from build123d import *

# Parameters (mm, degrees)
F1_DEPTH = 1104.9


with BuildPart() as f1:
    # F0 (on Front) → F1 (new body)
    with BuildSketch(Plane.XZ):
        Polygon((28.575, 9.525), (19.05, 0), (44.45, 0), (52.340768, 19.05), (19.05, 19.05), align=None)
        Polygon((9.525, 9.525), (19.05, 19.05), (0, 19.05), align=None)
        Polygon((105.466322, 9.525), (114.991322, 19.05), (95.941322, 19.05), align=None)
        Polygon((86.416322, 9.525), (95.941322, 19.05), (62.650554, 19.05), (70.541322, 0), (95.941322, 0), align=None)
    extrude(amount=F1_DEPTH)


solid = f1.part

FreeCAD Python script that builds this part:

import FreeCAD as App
import Part
import Sketcher
Q = App.Units.Quantity


def add_polygon(sketch, points):
    """Adds a closed chain of lines whose ends are joined by coincident constraints."""
    first, n = sketch.GeometryCount, len(points)
    for a, b in zip(points, points[1:] + points[:1]):
        sketch.addGeometry(Part.LineSegment(App.Vector(*a, 0), App.Vector(*b, 0)), False)
    for i in range(n):
        sketch.addConstraint(Sketcher.Constraint("Coincident", first + i, 2, first + (i + 1) % n, 1))

doc = App.newDocument("Part")
body = doc.addObject("PartDesign::Body", "Body")
body.AllowCompound = True

sketch1 = doc.addObject("Sketcher::SketchObject", "Sketch")
body.addObject(sketch1)
sketch1.AttachmentSupport = (doc.XZ_Plane, [""])
sketch1.MapMode = "FlatFace"
add_polygon(sketch1, [(29, 10), (19, 0), (44, 0), (52, 19), (19, 19)])
add_polygon(sketch1, [(10, 10), (19, 19), (0, 19)])
add_polygon(sketch1, [(105, 10), (115, 19), (96, 19)])
add_polygon(sketch1, [(86, 10), (96, 19), (63, 19), (71, 0), (96, 0)])
sketch1.addConstraint([
    Sketcher.Constraint("Horizontal", 1),
    Sketcher.Constraint("Horizontal", 3),
    Sketcher.Constraint("Horizontal", 6),
    Sketcher.Constraint("Horizontal", 9),
    Sketcher.Constraint("Horizontal", 12),
    Sketcher.Constraint("Horizontal", 14),
    Sketcher.Constraint("Coincident", 5, 2, 3, 2),
    Sketcher.Constraint("Coincident", 11, 2, 9, 2),
    Sketcher.Constraint("PointOnObject", 0, 2, -1),
    Sketcher.Constraint("PointOnObject", 6, 2, -2),
    Sketcher.Constraint("PointOnObject", 13, 2, -1),
    Sketcher.Constraint("Perpendicular", 0, 4),
    Sketcher.Constraint("Perpendicular", 4, 5),
    Sketcher.Constraint("Perpendicular", 5, 7),
    Sketcher.Constraint("Perpendicular", 7, 8),
    Sketcher.Constraint("Perpendicular", 8, 10),
    Sketcher.Constraint("Perpendicular", 10, 11),
    Sketcher.Constraint("Perpendicular", 11, 15),
    Sketcher.Constraint("Horizontal", 4, 2, 7, 2),
    Sketcher.Constraint("Horizontal", 6, 2, 8, 2),
    Sketcher.Constraint("Horizontal", 7, 2, 10, 2),
    Sketcher.Constraint("Horizontal", 10, 2, 15, 2),
    Sketcher.Constraint("Vertical", 0, 2, 3, 2),
    Sketcher.Constraint("Vertical", 11, 2, 14, 2),
    Sketcher.Constraint("Equal", 3, 12),
    Sketcher.Constraint("Equal", 1, 14),
    Sketcher.Constraint("DistanceX", 1, 1, 1, 2, Q("1 in")),
    Sketcher.Constraint("DistanceX", 6, 2, 6, 1, Q("0.75 in")),
    Sketcher.Constraint("Angle", 2, Q("67.500001 deg")),
    Sketcher.Constraint("DistanceX", -1, 1, 8, 2, Q("114.991322 mm")),
])
pad1 = doc.addObject("PartDesign::Pad", "Pad")
body.addObject(pad1)
pad1.Profile = sketch1
pad1.Length = Q("43.5 in")

doc.recompute()
